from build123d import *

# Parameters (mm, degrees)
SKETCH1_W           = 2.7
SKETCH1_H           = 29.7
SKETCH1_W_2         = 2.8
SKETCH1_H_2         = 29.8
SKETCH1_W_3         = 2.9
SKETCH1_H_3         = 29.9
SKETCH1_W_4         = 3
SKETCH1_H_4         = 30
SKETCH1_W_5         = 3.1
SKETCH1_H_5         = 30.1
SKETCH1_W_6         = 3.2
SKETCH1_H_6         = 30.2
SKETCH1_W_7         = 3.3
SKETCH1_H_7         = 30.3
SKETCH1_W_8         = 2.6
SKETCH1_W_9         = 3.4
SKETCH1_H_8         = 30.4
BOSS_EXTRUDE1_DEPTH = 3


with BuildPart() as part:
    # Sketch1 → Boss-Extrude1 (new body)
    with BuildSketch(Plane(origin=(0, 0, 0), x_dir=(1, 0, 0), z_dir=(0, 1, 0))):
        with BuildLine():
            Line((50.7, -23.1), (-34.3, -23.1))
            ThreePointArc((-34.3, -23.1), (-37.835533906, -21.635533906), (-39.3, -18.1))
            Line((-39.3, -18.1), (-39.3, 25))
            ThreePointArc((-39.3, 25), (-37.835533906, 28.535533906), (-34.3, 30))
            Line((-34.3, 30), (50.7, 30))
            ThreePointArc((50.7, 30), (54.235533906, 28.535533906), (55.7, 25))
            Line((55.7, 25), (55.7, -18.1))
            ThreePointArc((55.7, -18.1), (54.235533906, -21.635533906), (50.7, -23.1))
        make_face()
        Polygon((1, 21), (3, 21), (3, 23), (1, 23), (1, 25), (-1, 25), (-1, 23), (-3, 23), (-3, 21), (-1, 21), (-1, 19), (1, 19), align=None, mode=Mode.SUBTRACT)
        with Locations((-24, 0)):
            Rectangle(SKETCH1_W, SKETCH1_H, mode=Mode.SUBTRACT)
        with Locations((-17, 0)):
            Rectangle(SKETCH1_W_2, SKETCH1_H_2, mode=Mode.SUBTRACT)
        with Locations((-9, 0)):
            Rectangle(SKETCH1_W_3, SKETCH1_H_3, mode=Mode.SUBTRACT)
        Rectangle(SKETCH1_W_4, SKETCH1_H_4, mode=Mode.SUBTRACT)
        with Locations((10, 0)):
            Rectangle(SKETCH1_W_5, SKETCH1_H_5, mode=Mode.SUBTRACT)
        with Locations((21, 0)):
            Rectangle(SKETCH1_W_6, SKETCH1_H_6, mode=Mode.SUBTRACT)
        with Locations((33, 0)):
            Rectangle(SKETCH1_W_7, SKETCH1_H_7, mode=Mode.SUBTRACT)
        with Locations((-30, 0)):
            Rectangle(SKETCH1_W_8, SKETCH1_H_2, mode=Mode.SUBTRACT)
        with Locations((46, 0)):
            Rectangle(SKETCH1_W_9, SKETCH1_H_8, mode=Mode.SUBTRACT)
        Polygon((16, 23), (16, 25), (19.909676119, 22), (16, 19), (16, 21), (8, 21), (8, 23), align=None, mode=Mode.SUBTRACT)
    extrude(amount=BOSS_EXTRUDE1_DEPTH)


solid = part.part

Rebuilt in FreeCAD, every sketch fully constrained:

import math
import FreeCAD as App
import Part
import Sketcher
Q = App.Units.Quantity


def add_polygon(sketch, points):
    """Adds a closed chain of lines whose ends are joined by coincident constraints."""
    first, n = sketch.GeometryCount, len(points)
    for a, b in zip(points, points[1:] + points[:1]):
        sketch.addGeometry(Part.LineSegment(App.Vector(*a, 0), App.Vector(*b, 0)), False)
    for i in range(n):
        sketch.addConstraint(Sketcher.Constraint("Coincident", first + i, 2, first + (i + 1) % n, 1))

doc = App.newDocument("Part")
body = doc.addObject("PartDesign::Body", "Body")

sketch1 = body.newObject("Sketcher::SketchObject", "Sketch")
sketch1.AttachmentSupport = (doc.getObject("XZ_Plane"), [""])
sketch1.MapMode = "FlatFace"
sketch1.addGeometry(Part.LineSegment(App.Vector(-34.3, 23.1, 0), App.Vector(50.7, 23.1, 0)), False)
sketch1.addGeometry(Part.ArcOfCircle(Part.Circle(App.Vector(50.7, 18.1, 0), App.Vector(0, 0, 1), 5), math.radians(0), math.radians(90)), False)
sketch1.addGeometry(Part.LineSegment(App.Vector(55.7, 18.1, 0), App.Vector(55.7, -25, 0)), False)
sketch1.addGeometry(Part.ArcOfCircle(Part.Circle(App.Vector(50.7, -25, 0), App.Vector(0, 0, 1), 5), math.radians(-90), math.radians(0)), False)
sketch1.addGeometry(Part.LineSegment(App.Vector(50.7, -30, 0), App.Vector(-34.3, -30, 0)), False)
sketch1.addGeometry(Part.ArcOfCircle(Part.Circle(App.Vector(-34.3, -25, 0), App.Vector(0, 0, 1), 5), math.radians(180), math.radians(270)), False)
sketch1.addGeometry(Part.LineSegment(App.Vector(-39.3, -25, 0), App.Vector(-39.3, 18.1, 0)), False)
sketch1.addGeometry(Part.ArcOfCircle(Part.Circle(App.Vector(-34.3, 18.1, 0), App.Vector(0, 0, 1), 5), math.radians(90), math.radians(180)), False)
add_polygon(sketch1, [(44.3, 15.2), (44.3, -15.2), (47.7, -15.2), (47.7, 15.2)])
add_polygon(sketch1, [(31.35, 15.15), (31.35, -15.15), (34.65, -15.15), (34.65, 15.15)])
add_polygon(sketch1, [(19.4, 15.1), (19.4, -15.1), (22.6, -15.1), (22.6, 15.1)])
add_polygon(sketch1, [(8.45, 15.05), (8.45, -15.05), (11.55, -15.05), (11.55, 15.05)])
add_polygon(sketch1, [(-1.5, 15), (-1.5, -15), (1.5, -15), (1.5, 15)])
add_polygon(sketch1, [(-10.45, 14.95), (-10.45, -14.95), (-7.55, -14.95), (-7.55, 14.95)])
add_polygon(sketch1, [(-18.4, 14.9), (-18.4, -14.9), (-15.6, -14.9), (-15.6, 14.9)])
add_polygon(sketch1, [(-25.35, 14.85), (-25.35, -14.85), (-22.65, -14.85), (-22.65, 14.85)])
add_polygon(sketch1, [(-31.3, 14.9), (-31.3, -14.9), (-28.7, -14.9), (-28.7, 14.9)])
add_polygon(sketch1, [(16, -23), (16, -25), (19.909676, -22), (16, -19), (16, -21), (8, -21), (8, -23)])
add_polygon(sketch1, [(1, -21), (1, -19), (-1, -19), (-1, -21), (-3, -21), (-3, -23), (-1, -23), (-1, -25), (1, -25), (1, -23), (3, -23), (3, -21)])
sketch1.addConstraint(Sketcher.Constraint("Tangent", 0, 2, 1, 2))
sketch1.addConstraint(Sketcher.Constraint("Tangent", 1, 1, 2, 1))
sketch1.addConstraint(Sketcher.Constraint("Tangent", 2, 2, 3, 2))
sketch1.addConstraint(Sketcher.Constraint("Tangent", 3, 1, 4, 1))
sketch1.addConstraint(Sketcher.Constraint("Tangent", 4, 2, 5, 2))
sketch1.addConstraint(Sketcher.Constraint("Tangent", 5, 1, 6, 1))
sketch1.addConstraint(Sketcher.Constraint("Tangent", 6, 2, 7, 2))
sketch1.addConstraint(Sketcher.Constraint("Tangent", 7, 1, 0, 1))
sketch1.addConstraint(Sketcher.Constraint("Horizontal", 0))
sketch1.addConstraint(Sketcher.Constraint("Vertical", 2))
sketch1.addConstraint(Sketcher.Constraint("Horizontal", 4))
sketch1.addConstraint(Sketcher.Constraint("Vertical", 6))
sketch1.addConstraint(Sketcher.Constraint("Vertical", 8))
sketch1.addConstraint(Sketcher.Constraint("Horizontal", 9))
sketch1.addConstraint(Sketcher.Constraint("Vertical", 10))
sketch1.addConstraint(Sketcher.Constraint("Horizontal", 11))
sketch1.addConstraint(Sketcher.Constraint("Vertical", 12))
sketch1.addConstraint(Sketcher.Constraint("Horizontal", 13))
sketch1.addConstraint(Sketcher.Constraint("Vertical", 14))
sketch1.addConstraint(Sketcher.Constraint("Horizontal", 15))
sketch1.addConstraint(Sketcher.Constraint("Vertical", 16))
sketch1.addConstraint(Sketcher.Constraint("Horizontal", 17))
sketch1.addConstraint(Sketcher.Constraint("Vertical", 18))
sketch1.addConstraint(Sketcher.Constraint("Horizontal", 19))
sketch1.addConstraint(Sketcher.Constraint("Vertical", 20))
sketch1.addConstraint(Sketcher.Constraint("Horizontal", 21))
sketch1.addConstraint(Sketcher.Constraint("Vertical", 22))
sketch1.addConstraint(Sketcher.Constraint("Horizontal", 23))
sketch1.addConstraint(Sketcher.Constraint("Vertical", 24))
sketch1.addConstraint(Sketcher.Constraint("Horizontal", 25))
sketch1.addConstraint(Sketcher.Constraint("Vertical", 26))
sketch1.addConstraint(Sketcher.Constraint("Horizontal", 27))
sketch1.addConstraint(Sketcher.Constraint("Vertical", 28))
sketch1.addConstraint(Sketcher.Constraint("Horizontal", 29))
sketch1.addConstraint(Sketcher.Constraint("Vertical", 30))
sketch1.addConstraint(Sketcher.Constraint("Horizontal", 31))
sketch1.addConstraint(Sketcher.Constraint("Vertical", 32))
sketch1.addConstraint(Sketcher.Constraint("Horizontal", 33))
sketch1.addConstraint(Sketcher.Constraint("Vertical", 34))
sketch1.addConstraint(Sketcher.Constraint("Horizontal", 35))
sketch1.addConstraint(Sketcher.Constraint("Vertical", 36))
sketch1.addConstraint(Sketcher.Constraint("Horizontal", 37))
sketch1.addConstraint(Sketcher.Constraint("Vertical", 38))
sketch1.addConstraint(Sketcher.Constraint("Horizontal", 39))
sketch1.addConstraint(Sketcher.Constraint("Vertical", 40))
sketch1.addConstraint(Sketcher.Constraint("Horizontal", 41))
sketch1.addConstraint(Sketcher.Constraint("Vertical", 42))
sketch1.addConstraint(Sketcher.Constraint("Horizontal", 43))
sketch1.addConstraint(Sketcher.Constraint("Vertical", 44))
sketch1.addConstraint(Sketcher.Constraint("Vertical", 47))
sketch1.addConstraint(Sketcher.Constraint("Horizontal", 48))
sketch1.addConstraint(Sketcher.Constraint("Vertical", 49))
sketch1.addConstraint(Sketcher.Constraint("Horizontal", 50))
sketch1.addConstraint(Sketcher.Constraint("Vertical", 51))
sketch1.addConstraint(Sketcher.Constraint("Horizontal", 52))
sketch1.addConstraint(Sketcher.Constraint("Vertical", 53))
sketch1.addConstraint(Sketcher.Constraint("Horizontal", 54))
sketch1.addConstraint(Sketcher.Constraint("Vertical", 55))
sketch1.addConstraint(Sketcher.Constraint("Horizontal", 56))
sketch1.addConstraint(Sketcher.Constraint("Vertical", 57))
sketch1.addConstraint(Sketcher.Constraint("Horizontal", 58))
sketch1.addConstraint(Sketcher.Constraint("Vertical", 59))
sketch1.addConstraint(Sketcher.Constraint("Horizontal", 60))
sketch1.addConstraint(Sketcher.Constraint("Vertical", 61))
sketch1.addConstraint(Sketcher.Constraint("Horizontal", 62))
sketch1.addConstraint(Sketcher.Constraint("Equal", 1, 3))
sketch1.addConstraint(Sketcher.Constraint("Equal", 3, 5))
sketch1.addConstraint(Sketcher.Constraint("Equal", 5, 7))
sketch1.addConstraint(Sketcher.Constraint("Symmetric", 24, 2, 26, 2, -1, 1))
sketch1.addConstraint(Sketcher.Constraint("Symmetric", 56, 2, 59, 2, -2))
sketch1.addConstraint(Sketcher.Constraint("Symmetric", 54, 2, 61, 2, -2))
sketch1.addConstraint(Sketcher.Constraint("Horizontal", 33, 2, 40, 2))
sketch1.addConstraint(Sketcher.Constraint("Horizontal", 35, 2, 42, 2))
sketch1.addConstraint(Sketcher.Constraint("Horizontal", 5, 1, 44, 2))
sketch1.addConstraint(Sketcher.Constraint("Horizontal", 46, 2, 51, 2))
sketch1.addConstraint(Sketcher.Constraint("Horizontal", 48, 2, 53, 2))
sketch1.addConstraint(Sketcher.Constraint("Horizontal", 50, 2, 55, 2))
sketch1.addConstraint(Sketcher.Constraint("Horizontal", 44, 2, 57, 2))
sketch1.addConstraint(Sketcher.Constraint("Vertical", 44, 2, 46, 2))
sketch1.addConstraint(Sketcher.Constraint("Vertical", 53, 2, 56, 2))
sketch1.addConstraint(Sketcher.Constraint("Vertical", 51, 2, 58, 2))
sketch1.addConstraint(Sketcher.Constraint("Equal", 52, 54))
sketch1.addConstraint(Sketcher.Constraint("Equal", 62, 44))
sketch1.addConstraint(Sketcher.Constraint("Equal", 44, 47))
sketch1.addConstraint(Sketcher.Constraint("Equal", 47, 49))
sketch1.addConstraint(Sketcher.Constraint("Equal", 45, 46))
sketch1.addConstraint(Sketcher.Constraint("Radius", 1, 5.0))
sketch1.addConstraint(Sketcher.Constraint("DistanceX", 0, 1, 0, 2, 85.0))
sketch1.addConstraint(Sketcher.Constraint("DistanceX", 25, 1, 25, 2, 3.0))
sketch1.addConstraint(Sketcher.Constraint("DistanceX", 48, 2, 48, 1, 8.0))
sketch1.addConstraint(Sketcher.Constraint("DistanceX", 52, 2, 52, 1, 2.0))
sketch1.addConstraint(Sketcher.Constraint("DistanceY", 24, 2, 24, 1, 30.0))
sketch1.addConstraint(Sketcher.Constraint("DistanceX", 9, 1, 9, 2, 3.4))
sketch1.addConstraint(Sketcher.Constraint("DistanceX", 13, 1, 13, 2, 3.3))
sketch1.addConstraint(Sketcher.Constraint("DistanceX", 17, 1, 17, 2, 3.2))
sketch1.addConstraint(Sketcher.Constraint("DistanceX", 21, 1, 21, 2, 3.1))
sketch1.addConstraint(Sketcher.Constraint("DistanceX", 29, 1, 29, 2, 2.9))
sketch1.addConstraint(Sketcher.Constraint("DistanceX", 33, 1, 33, 2, 2.8))
sketch1.addConstraint(Sketcher.Constraint("DistanceX", 37, 1, 37, 2, 2.7))
sketch1.addConstraint(Sketcher.Constraint("DistanceX", 41, 1, 41, 2, 2.6))
sketch1.addConstraint(Sketcher.Constraint("DistanceY", 2, 2, 2, 1, 43.1))
sketch1.addConstraint(Sketcher.Constraint("DistanceY", 8, 2, 8, 1, 30.4))
sketch1.addConstraint(Sketcher.Constraint("DistanceY", 12, 2, 12, 1, 30.3))
sketch1.addConstraint(Sketcher.Constraint("DistanceY", 16, 2, 16, 1, 30.2))
sketch1.addConstraint(Sketcher.Constraint("DistanceY", 20, 2, 20, 1, 30.1))
sketch1.addConstraint(Sketcher.Constraint("DistanceY", 28, 2, 28, 1, 29.9))
sketch1.addConstraint(Sketcher.Constraint("DistanceY", 32, 2, 32, 1, 29.8))
sketch1.addConstraint(Sketcher.Constraint("DistanceY", 36, 2, 36, 1, 29.7))
sketch1.addConstraint(Sketcher.Constraint("DistanceY", 3, 3, -1, 1, 25.0))
sketch1.addConstraint(Sketcher.Constraint("DistanceX", -1, 1, 44, 2, 16.0))
sketch1.addConstraint(Sketcher.Constraint("Angle", 45, Q("37.5 deg")))
sketch1.addConstraint(Sketcher.Constraint("DistanceX", -1, 1, 1, 3, 50.7))
sketch1.addConstraint(Sketcher.Constraint("DistanceX", -1, 1, 8, 2, 44.3))
sketch1.addConstraint(Sketcher.Constraint("DistanceY", 8, 2, -1, 1, 15.2))
sketch1.addConstraint(Sketcher.Constraint("DistanceX", -1, 1, 16, 2, 19.4))
sketch1.addConstraint(Sketcher.Constraint("DistanceY", 16, 2, -1, 1, 15.1))
sketch1.addConstraint(Sketcher.Constraint("DistanceX", 32, 2, -1, 1, 18.4))
sketch1.addConstraint(Sketcher.Constraint("DistanceY", 32, 2, -1, 1, 14.9))
sketch1.addConstraint(Sketcher.Constraint("DistanceX", 40, 2, -1, 1, 31.3))
sketch1.addConstraint(Sketcher.Constraint("DistanceX", -1, 1, 12, 2, 31.35))
sketch1.addConstraint(Sketcher.Constraint("DistanceY", 12, 2, -1, 1, 15.15))
sketch1.addConstraint(Sketcher.Constraint("DistanceX", -1, 1, 20, 2, 8.45))
sketch1.addConstraint(Sketcher.Constraint("DistanceY", 20, 2, -1, 1, 15.05))
sketch1.addConstraint(Sketcher.Constraint("DistanceX", 28, 2, -1, 1, 10.45))
sketch1.addConstraint(Sketcher.Constraint("DistanceY", 28, 2, -1, 1, 14.95))
sketch1.addConstraint(Sketcher.Constraint("DistanceX", 36, 2, -1, 1, 25.35))
sketch1.addConstraint(Sketcher.Constraint("DistanceY", 36, 2, -1, 1, 14.85))
pad1 = body.newObject("PartDesign::Pad", "Pad")
pad1.Profile = sketch1
pad1.Length = 3
pad1.Reversed = True

doc.recompute()
